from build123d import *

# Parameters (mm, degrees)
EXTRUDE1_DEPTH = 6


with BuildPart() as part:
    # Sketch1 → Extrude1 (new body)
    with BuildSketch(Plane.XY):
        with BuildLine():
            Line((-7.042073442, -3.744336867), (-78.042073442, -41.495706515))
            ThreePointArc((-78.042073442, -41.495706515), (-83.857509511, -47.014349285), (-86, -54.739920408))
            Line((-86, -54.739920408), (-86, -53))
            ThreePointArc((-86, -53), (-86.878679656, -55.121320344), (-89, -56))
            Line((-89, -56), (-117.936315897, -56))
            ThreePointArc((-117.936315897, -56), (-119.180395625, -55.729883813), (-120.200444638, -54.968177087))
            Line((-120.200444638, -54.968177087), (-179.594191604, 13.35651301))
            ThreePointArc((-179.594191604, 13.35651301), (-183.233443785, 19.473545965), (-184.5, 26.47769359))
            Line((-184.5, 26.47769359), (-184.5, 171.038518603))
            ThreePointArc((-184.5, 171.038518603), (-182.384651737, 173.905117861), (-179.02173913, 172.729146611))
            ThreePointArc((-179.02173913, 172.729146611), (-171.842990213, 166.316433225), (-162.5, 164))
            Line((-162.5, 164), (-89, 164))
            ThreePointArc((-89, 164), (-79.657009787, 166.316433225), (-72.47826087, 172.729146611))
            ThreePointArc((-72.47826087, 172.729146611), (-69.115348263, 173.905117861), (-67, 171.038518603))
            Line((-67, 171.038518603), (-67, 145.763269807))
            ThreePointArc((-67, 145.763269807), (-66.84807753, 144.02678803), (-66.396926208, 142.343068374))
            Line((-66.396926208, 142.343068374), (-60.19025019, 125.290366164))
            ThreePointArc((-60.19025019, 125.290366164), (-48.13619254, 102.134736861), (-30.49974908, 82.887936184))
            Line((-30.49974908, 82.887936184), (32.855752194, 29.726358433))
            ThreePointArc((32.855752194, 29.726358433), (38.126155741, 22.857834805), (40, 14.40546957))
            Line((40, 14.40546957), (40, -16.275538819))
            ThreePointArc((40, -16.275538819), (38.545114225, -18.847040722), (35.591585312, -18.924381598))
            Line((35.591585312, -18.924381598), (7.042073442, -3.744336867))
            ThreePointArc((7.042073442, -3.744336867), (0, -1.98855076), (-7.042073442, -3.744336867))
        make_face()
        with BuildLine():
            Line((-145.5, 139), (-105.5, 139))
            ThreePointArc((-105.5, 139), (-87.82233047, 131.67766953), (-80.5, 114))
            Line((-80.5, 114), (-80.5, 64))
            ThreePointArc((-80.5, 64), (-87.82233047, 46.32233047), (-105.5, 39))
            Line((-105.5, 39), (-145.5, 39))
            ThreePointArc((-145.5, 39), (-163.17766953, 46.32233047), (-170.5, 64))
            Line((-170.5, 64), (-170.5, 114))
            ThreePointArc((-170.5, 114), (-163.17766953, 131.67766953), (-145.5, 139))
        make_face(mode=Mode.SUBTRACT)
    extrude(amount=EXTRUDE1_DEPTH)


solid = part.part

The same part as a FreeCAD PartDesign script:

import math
import FreeCAD as App
import Part
import Sketcher
Q = App.Units.Quantity

doc = App.newDocument("Part")
params = doc.addObject("Spreadsheet::Sheet", "Params")
for row, (alias, value) in enumerate([
    ("sketch1_radius", "15 mm"),
    ("sketch1_radius2", "3 mm"),
    ("sketch1_radius3", "20 mm"),
    ("sketch1_radius4", "100 mm"),
    ("sketch1_radius5", "10 mm"),
    ("pad1_length", "6 mm"),
], start=1):
    params.set(f"A{row}", alias)
    params.set(f"B{row}", "=" + value)
    params.setAlias(f"B{row}", alias)

body = doc.addObject("PartDesign::Body", "Body")

# Sketch on XY plane
sketch1 = doc.addObject("Sketcher::SketchObject", "Sketch")
body.addObject(sketch1)
sketch1.AttachmentSupport = (doc.XY_Plane, [""])
sketch1.MapMode = "FlatFace"
sketch1.addGeometry([
    Part.LineSegment(App.Vector(-78, -41.5, 0), App.Vector(-7, -3.7, 0)),  # 0
    Part.ArcOfCircle(Part.Circle(App.Vector(0, -17, 0), App.Vector(0, 0, 1), 15), math.radians(62), math.radians(118)),  # 1
    Part.LineSegment(App.Vector(7, -3.7, 0), App.Vector(35.6, -18.9, 0)),  # 2
    Part.ArcOfCircle(Part.Circle(App.Vector(37, -16.3, 0), App.Vector(0, 0, 1), 3), math.radians(-118), math.radians(0)),  # 3
    Part.LineSegment(App.Vector(40, -16.3, 0), App.Vector(40, 14.4, 0)),  # 4
    Part.ArcOfCircle(Part.Circle(App.Vector(20, 14.4, 0), App.Vector(0, 0, 1), 20), math.radians(0), math.radians(50)),  # 5
    Part.LineSegment(App.Vector(32.9, 29.7, 0), App.Vector(-30.5, 82.9, 0)),  # 6
    Part.ArcOfCircle(Part.Circle(App.Vector(33.8, 159.5, 0), App.Vector(0, 0, 1), 100), math.radians(-160), math.radians(-130)),  # 7
    Part.LineSegment(App.Vector(-60.2, 125.3, 0), App.Vector(-66.4, 142.3, 0)),  # 8
    Part.ArcOfCircle(Part.Circle(App.Vector(-57, 145.8, 0), App.Vector(0, 0, 1), 10), math.radians(-180), math.radians(-160)),  # 9
    Part.LineSegment(App.Vector(-67, 145.8, 0), App.Vector(-67, 171, 0)),  # 10
    Part.ArcOfCircle(Part.Circle(App.Vector(-70, 171, 0), App.Vector(0, 0, 1), 3), math.radians(0), math.radians(146)),  # 11
    Part.ArcOfCircle(Part.Circle(App.Vector(-89, 184, 0), App.Vector(0, 0, 1), 20), math.radians(-90), math.radians(-34)),  # 12
    Part.LineSegment(App.Vector(-89, 164, 0), App.Vector(-162.5, 164, 0)),  # 13
    Part.ArcOfCircle(Part.Circle(App.Vector(-162.5, 184, 0), App.Vector(0, 0, 1), 20), math.radians(-146), math.radians(-90)),  # 14
    Part.ArcOfCircle(Part.Circle(App.Vector(-181.5, 171, 0), App.Vector(0, 0, 1), 3), math.radians(34), math.radians(180)),  # 15
    Part.LineSegment(App.Vector(-184.5, 171, 0), App.Vector(-184.5, 26.5, 0)),  # 16
    Part.ArcOfCircle(Part.Circle(App.Vector(-164.5, 26.5, 0), App.Vector(0, 0, 1), 20), math.radians(180), math.radians(221)),  # 17
    Part.LineSegment(App.Vector(-179.6, 13.4, 0), App.Vector(-120.2, -55, 0)),  # 18
    Part.ArcOfCircle(Part.Circle(App.Vector(-117.9, -53, 0), App.Vector(0, 0, 1), 3), math.radians(-139), math.radians(-90)),  # 19
    Part.LineSegment(App.Vector(-117.9, -56, 0), App.Vector(-89, -56, 0)),  # 20
    Part.ArcOfCircle(Part.Circle(App.Vector(-89, -53, 0), App.Vector(0, 0, 1), 3), math.radians(-90), math.radians(0)),  # 21
    Part.LineSegment(App.Vector(-86, -53, 0), App.Vector(-86, -54.7, 0)),  # 22
    Part.ArcOfCircle(Part.Circle(App.Vector(-71, -54.7, 0), App.Vector(0, 0, 1), 15), math.radians(118), math.radians(180)),  # 23
    Part.LineSegment(App.Vector(-145.5, 139, 0), App.Vector(-105.5, 139, 0)),  # 24
    Part.ArcOfCircle(Part.Circle(App.Vector(-105.5, 114, 0), App.Vector(0, 0, 1), 25), math.radians(0), math.radians(90)),  # 25
    Part.LineSegment(App.Vector(-80.5, 114, 0), App.Vector(-80.5, 64, 0)),  # 26
    Part.ArcOfCircle(Part.Circle(App.Vector(-105.5, 64, 0), App.Vector(0, 0, 1), 25), math.radians(-90), math.radians(0)),  # 27
    Part.LineSegment(App.Vector(-105.5, 39, 0), App.Vector(-145.5, 39, 0)),  # 28
    Part.ArcOfCircle(Part.Circle(App.Vector(-145.5, 64, 0), App.Vector(0, 0, 1), 25), math.radians(180), math.radians(270)),  # 29
    Part.LineSegment(App.Vector(-170.5, 64, 0), App.Vector(-170.5, 114, 0)),  # 30
    Part.ArcOfCircle(Part.Circle(App.Vector(-145.5, 114, 0), App.Vector(0, 0, 1), 25), math.radians(90), math.radians(180)),  # 31
], False)
sketch1.addConstraint([
    Sketcher.Constraint("Tangent", 0, 2, 1, 2),
    Sketcher.Constraint("Tangent", 1, 1, 2, 1),
    Sketcher.Constraint("Tangent", 2, 2, 3, 1),
    Sketcher.Constraint("Tangent", 3, 2, 4, 1),
    Sketcher.Constraint("Tangent", 4, 2, 5, 1),
    Sketcher.Constraint("Tangent", 5, 2, 6, 1),
    Sketcher.Constraint("Tangent", 6, 2, 7, 2),
    Sketcher.Constraint("Tangent", 7, 1, 8, 1),
    Sketcher.Constraint("Tangent", 8, 2, 9, 2),
    Sketcher.Constraint("Tangent", 9, 1, 10, 1),
    Sketcher.Constraint("Tangent", 10, 2, 11, 1),
    Sketcher.Constraint("Tangent", 11, 2, 12, 2),
    Sketcher.Constraint("Tangent", 12, 1, 13, 1),
    Sketcher.Constraint("Tangent", 13, 2, 14, 2),
    Sketcher.Constraint("Tangent", 14, 1, 15, 1),
    Sketcher.Constraint("Tangent", 15, 2, 16, 1),
    Sketcher.Constraint("Tangent", 16, 2, 17, 1),
    Sketcher.Constraint("Tangent", 17, 2, 18, 1),
    Sketcher.Constraint("Tangent", 18, 2, 19, 1),
    Sketcher.Constraint("Tangent", 19, 2, 20, 1),
    Sketcher.Constraint("Tangent", 20, 2, 21, 1),
    Sketcher.Constraint("Tangent", 21, 2, 22, 1),
    Sketcher.Constraint("Tangent", 22, 2, 23, 2),
    Sketcher.Constraint("Tangent", 23, 1, 0, 1),
    Sketcher.Constraint("Tangent", 24, 2, 25, 2),
    Sketcher.Constraint("Tangent", 25, 1, 26, 1),
    Sketcher.Constraint("Tangent", 26, 2, 27, 2),
    Sketcher.Constraint("Tangent", 27, 1, 28, 1),
    Sketcher.Constraint("Tangent", 28, 2, 29, 2),
    Sketcher.Constraint("Tangent", 29, 1, 30, 1),
    Sketcher.Constraint("Tangent", 30, 2, 31, 2),
    Sketcher.Constraint("Tangent", 31, 1, 24, 1),
    Sketcher.Constraint("Vertical", 4),
    Sketcher.Constraint("Vertical", 10),
    Sketcher.Constraint("Horizontal", 13),
    Sketcher.Constraint("Vertical", 16),
    Sketcher.Constraint("Horizontal", 20),
    Sketcher.Constraint("Vertical", 22),
    Sketcher.Constraint("Horizontal", 24),
    Sketcher.Constraint("Vertical", 26),
    Sketcher.Constraint("Horizontal", 28),
    Sketcher.Constraint("Vertical", 30),
    Sketcher.Constraint("Equal", 3, 11),
    Sketcher.Constraint("Equal", 5, 12),
    Sketcher.Constraint("Equal", 12, 14),
    Sketcher.Constraint("Equal", 11, 15),
    Sketcher.Constraint("Equal", 14, 17),
    Sketcher.Constraint("Equal", 15, 19),
    Sketcher.Constraint("Equal", 19, 21),
    Sketcher.Constraint("Equal", 1, 23),
    Sketcher.Constraint("Equal", 25, 27),
    Sketcher.Constraint("Equal", 27, 29),
    Sketcher.Constraint("Equal", 29, 31),
    Sketcher.Constraint("Symmetric", 0, 2, 1, 1, -2),
    Sketcher.Constraint("Horizontal", 11, 3, 15, 3),
    Sketcher.Constraint("Vertical", 12, 3, 21, 3),
    Sketcher.Constraint("Radius", 1, Q("15 mm")),
    Sketcher.Constraint("Radius", 3, Q("3 mm")),
    Sketcher.Constraint("Radius", 5, Q("20 mm")),
    Sketcher.Constraint("Radius", 7, Q("100 mm")),
    Sketcher.Constraint("Radius", 9, Q("10 mm")),
    Sketcher.Constraint("Radius", 25, Q("25 mm")),
    Sketcher.Constraint("DistanceX", 24, 1, 24, 2, Q("40 mm")),
    Sketcher.Constraint("DistanceY", 26, 2, 26, 1, Q("50 mm")),
    Sketcher.Constraint("Angle", 0, Q("28 deg")),
    Sketcher.Constraint("Angle", 6, Q("140 deg")),
    Sketcher.Constraint("Angle", 8, Q("110 deg")),
    Sketcher.Constraint("Angle", 18, Q("-49 deg")),
    Sketcher.Constraint("DistanceX", 13, 2, 13, 1, Q("73.5 mm")),
    Sketcher.Constraint("DistanceX", -1, 1, 3, 3, Q("37 mm")),
    Sketcher.Constraint("DistanceX", 9, 3, -1, 1, Q("57 mm")),
    Sketcher.Constraint("DistanceX", 12, 3, -1, 1, Q("89 mm")),
    Sketcher.Constraint("DistanceY", -1, 1, 12, 3, Q("184 mm")),
    Sketcher.Constraint("DistanceY", 19, 3, -1, 1, Q("53 mm")),
    Sketcher.Constraint("DistanceY", -1, 1, 25, 3, Q("114 mm")),
    Sketcher.Constraint("DistanceX", 14, 3, 25, 3, Q("57 mm")),
    Sketcher.Constraint("DistanceY", 4, 1, 4, 2, Q("30.681008 mm")),
    Sketcher.Constraint("DistanceY", 10, 1, 10, 2, Q("25.275249 mm")),
    Sketcher.Constraint("DistanceY", 22, 2, 22, 1, Q("1.73992 mm")),
    Sketcher.Constraint("DistanceX", 20, 1, 20, 2, Q("28.936316 mm")),
])
sketch1.setExpression("Constraints[56]", "Params.sketch1_radius")
sketch1.setExpression("Constraints[57]", "Params.sketch1_radius2")
sketch1.setExpression("Constraints[58]", "Params.sketch1_radius3")
sketch1.setExpression("Constraints[59]", "Params.sketch1_radius4")
sketch1.setExpression("Constraints[60]", "Params.sketch1_radius5")
pad1 = doc.addObject("PartDesign::Pad", "Pad")
body.addObject(pad1)
pad1.Profile = sketch1
pad1.setExpression("Length", "Params.pad1_length")

doc.recompute()
